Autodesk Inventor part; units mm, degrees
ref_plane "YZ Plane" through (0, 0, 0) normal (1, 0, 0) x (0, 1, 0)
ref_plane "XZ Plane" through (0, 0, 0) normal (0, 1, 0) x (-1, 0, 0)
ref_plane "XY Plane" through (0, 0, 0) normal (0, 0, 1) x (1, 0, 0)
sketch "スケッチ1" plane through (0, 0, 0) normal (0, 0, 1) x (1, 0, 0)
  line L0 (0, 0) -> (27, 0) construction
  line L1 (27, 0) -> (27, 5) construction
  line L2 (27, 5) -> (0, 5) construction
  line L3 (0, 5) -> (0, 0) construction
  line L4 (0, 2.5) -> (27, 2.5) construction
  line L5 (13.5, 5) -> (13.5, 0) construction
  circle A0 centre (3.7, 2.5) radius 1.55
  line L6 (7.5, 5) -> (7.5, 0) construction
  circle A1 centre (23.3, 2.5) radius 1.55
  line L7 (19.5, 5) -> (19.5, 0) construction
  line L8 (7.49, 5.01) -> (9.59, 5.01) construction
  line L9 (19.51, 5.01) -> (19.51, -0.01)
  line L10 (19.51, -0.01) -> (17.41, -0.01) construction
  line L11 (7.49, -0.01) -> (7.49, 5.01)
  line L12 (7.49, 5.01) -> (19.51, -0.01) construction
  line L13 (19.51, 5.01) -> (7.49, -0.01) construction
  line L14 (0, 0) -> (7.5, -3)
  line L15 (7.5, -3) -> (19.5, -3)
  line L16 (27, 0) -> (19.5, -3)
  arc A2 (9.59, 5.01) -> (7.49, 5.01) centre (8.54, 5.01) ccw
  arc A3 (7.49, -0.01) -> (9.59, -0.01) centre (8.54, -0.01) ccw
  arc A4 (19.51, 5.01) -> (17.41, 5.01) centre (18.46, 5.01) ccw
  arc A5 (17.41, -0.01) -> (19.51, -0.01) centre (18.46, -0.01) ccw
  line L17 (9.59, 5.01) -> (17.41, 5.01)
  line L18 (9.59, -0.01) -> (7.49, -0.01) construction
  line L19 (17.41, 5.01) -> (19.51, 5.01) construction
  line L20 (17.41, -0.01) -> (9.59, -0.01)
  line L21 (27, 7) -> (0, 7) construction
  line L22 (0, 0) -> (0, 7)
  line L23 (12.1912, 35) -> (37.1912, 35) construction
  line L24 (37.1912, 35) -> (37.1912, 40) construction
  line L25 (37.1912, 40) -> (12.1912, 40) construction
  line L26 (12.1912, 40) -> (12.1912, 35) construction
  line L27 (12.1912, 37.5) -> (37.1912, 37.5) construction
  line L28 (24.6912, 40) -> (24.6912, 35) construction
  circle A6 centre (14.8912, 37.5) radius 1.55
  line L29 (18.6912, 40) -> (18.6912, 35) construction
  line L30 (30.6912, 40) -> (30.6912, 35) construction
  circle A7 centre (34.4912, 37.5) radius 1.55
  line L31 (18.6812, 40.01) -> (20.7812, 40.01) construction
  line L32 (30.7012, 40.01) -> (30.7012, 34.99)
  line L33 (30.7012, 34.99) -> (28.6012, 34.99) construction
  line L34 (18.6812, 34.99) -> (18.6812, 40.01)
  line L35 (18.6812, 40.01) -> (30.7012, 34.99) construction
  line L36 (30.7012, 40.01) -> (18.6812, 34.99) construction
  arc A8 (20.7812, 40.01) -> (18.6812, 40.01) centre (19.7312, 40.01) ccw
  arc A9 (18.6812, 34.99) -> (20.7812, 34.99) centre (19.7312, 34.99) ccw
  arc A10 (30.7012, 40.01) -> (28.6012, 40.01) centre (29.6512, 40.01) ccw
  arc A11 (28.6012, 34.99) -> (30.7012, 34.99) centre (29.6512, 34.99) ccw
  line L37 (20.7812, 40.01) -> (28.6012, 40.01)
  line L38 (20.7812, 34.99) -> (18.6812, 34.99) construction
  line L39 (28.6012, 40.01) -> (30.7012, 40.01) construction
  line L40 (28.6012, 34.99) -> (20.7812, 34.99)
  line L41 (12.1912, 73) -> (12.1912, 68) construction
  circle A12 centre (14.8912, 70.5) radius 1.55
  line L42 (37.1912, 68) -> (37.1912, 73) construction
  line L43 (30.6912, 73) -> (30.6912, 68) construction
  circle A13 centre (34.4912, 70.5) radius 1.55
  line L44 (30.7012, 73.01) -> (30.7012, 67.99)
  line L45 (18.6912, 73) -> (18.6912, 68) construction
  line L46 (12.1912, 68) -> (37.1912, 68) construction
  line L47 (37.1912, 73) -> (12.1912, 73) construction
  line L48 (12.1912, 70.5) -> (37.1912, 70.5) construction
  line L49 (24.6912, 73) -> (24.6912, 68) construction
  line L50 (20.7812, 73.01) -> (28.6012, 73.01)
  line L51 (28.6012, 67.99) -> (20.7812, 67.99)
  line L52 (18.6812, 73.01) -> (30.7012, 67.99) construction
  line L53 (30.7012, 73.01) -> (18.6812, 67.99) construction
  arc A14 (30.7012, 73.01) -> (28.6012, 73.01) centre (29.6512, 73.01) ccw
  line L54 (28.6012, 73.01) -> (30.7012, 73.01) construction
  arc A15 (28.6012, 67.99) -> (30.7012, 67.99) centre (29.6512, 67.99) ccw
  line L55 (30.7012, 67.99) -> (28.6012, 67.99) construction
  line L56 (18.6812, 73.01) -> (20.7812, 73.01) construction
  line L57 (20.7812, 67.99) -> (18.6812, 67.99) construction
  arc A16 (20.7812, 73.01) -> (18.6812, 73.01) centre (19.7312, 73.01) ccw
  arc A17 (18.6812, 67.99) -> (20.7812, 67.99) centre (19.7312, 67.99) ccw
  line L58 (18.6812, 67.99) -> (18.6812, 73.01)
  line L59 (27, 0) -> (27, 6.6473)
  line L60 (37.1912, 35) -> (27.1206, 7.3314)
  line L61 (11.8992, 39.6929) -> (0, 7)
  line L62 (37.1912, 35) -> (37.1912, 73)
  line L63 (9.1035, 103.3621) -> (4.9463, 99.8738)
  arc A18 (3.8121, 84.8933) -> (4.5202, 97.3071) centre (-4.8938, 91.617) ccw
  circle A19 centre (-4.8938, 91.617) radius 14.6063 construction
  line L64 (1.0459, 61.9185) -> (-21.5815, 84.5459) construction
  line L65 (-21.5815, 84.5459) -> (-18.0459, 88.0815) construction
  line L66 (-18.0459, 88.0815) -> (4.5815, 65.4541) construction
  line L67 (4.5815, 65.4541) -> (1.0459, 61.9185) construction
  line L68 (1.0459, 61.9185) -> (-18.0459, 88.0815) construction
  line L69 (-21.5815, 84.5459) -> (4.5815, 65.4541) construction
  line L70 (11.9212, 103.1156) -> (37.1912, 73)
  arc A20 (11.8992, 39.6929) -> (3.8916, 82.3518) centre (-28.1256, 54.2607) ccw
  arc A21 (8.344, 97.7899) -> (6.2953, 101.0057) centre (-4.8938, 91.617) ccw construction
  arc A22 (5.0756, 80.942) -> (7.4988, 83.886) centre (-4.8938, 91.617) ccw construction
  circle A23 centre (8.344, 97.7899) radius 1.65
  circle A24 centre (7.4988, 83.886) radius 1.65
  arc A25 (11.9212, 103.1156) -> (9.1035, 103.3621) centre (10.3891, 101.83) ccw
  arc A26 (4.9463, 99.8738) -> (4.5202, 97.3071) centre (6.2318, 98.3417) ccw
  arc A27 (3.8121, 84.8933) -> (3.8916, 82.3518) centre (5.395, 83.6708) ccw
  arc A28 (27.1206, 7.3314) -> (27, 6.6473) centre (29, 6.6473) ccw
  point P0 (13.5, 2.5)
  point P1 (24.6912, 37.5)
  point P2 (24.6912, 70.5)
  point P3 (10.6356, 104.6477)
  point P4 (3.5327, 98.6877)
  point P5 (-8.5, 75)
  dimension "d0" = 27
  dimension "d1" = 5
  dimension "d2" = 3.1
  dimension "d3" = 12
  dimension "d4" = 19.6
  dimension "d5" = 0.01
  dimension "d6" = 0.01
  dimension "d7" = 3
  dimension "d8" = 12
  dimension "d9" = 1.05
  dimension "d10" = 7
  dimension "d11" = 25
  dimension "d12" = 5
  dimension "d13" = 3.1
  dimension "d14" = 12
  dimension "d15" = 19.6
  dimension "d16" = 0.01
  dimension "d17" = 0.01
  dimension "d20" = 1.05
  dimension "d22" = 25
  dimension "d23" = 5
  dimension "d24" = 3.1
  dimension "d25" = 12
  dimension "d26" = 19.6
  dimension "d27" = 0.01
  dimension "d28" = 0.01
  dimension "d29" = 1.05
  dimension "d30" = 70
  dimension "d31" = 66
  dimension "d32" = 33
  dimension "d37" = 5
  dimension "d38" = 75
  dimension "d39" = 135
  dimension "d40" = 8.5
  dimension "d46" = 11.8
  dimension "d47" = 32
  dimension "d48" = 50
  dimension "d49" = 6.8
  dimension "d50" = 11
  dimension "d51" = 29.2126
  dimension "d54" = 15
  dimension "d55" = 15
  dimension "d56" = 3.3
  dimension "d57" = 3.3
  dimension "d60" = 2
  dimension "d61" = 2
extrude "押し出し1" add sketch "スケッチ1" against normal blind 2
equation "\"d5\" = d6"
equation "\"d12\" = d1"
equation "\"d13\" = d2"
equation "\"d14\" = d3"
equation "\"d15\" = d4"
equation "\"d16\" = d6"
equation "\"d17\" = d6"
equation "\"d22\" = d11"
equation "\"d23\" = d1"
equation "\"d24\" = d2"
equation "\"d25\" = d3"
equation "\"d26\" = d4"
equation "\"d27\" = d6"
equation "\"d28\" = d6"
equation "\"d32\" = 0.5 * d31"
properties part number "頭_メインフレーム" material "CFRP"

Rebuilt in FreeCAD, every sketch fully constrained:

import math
import FreeCAD as App
import Part
import Sketcher
Q = App.Units.Quantity

doc = App.newDocument("Part")
body = doc.addObject("PartDesign::Body", "Body")

# Sketch on XY plane
sketch1 = body.newObject("Sketcher::SketchObject", "Sketch")
sketch1.AttachmentSupport = (doc.getObject("XY_Plane"), [""])
sketch1.MapMode = "FlatFace"
sketch1.addGeometry(Part.LineSegment(App.Vector(0, 7, 0), App.Vector(0, 0, 0)), False)
sketch1.addGeometry(Part.LineSegment(App.Vector(0, 0, 0), App.Vector(7.5, -3, 0)), False)
sketch1.addGeometry(Part.LineSegment(App.Vector(7.5, -3, 0), App.Vector(19.5, -3, 0)), False)
sketch1.addGeometry(Part.LineSegment(App.Vector(19.5, -3, 0), App.Vector(27, 0, 0)), False)
sketch1.addGeometry(Part.LineSegment(App.Vector(27, 0, 0), App.Vector(27, 6.6, 0)), False)
sketch1.addGeometry(Part.ArcOfCircle(Part.Circle(App.Vector(29, 6.6, 0), App.Vector(0, 0, 1), 2), math.radians(160), math.radians(180)), False)
sketch1.addGeometry(Part.LineSegment(App.Vector(27.1, 7.3, 0), App.Vector(37.2, 35, 0)), False)
sketch1.addGeometry(Part.LineSegment(App.Vector(37.2, 35, 0), App.Vector(37.2, 73, 0)), False)
sketch1.addGeometry(Part.LineSegment(App.Vector(37.2, 73, 0), App.Vector(11.9, 103.1, 0)), False)
sketch1.addGeometry(Part.ArcOfCircle(Part.Circle(App.Vector(10.4, 101.8, 0), App.Vector(0, 0, 1), 2), math.radians(40), math.radians(130)), False)
sketch1.addGeometry(Part.LineSegment(App.Vector(9.1, 103.4, 0), App.Vector(4.9, 99.9, 0)), False)
sketch1.addGeometry(Part.ArcOfCircle(Part.Circle(App.Vector(6.2, 98.3, 0), App.Vector(0, 0, 1), 2), math.radians(130), math.radians(211)), False)
sketch1.addGeometry(Part.ArcOfCircle(Part.Circle(App.Vector(-4.9, 91.6, 0), App.Vector(0, 0, 1), 11), math.radians(-38), math.radians(31)), False)
sketch1.addGeometry(Part.ArcOfCircle(Part.Circle(App.Vector(5.4, 83.7, 0), App.Vector(0, 0, 1), 2), math.radians(142), math.radians(221)), False)
sketch1.addGeometry(Part.ArcOfCircle(Part.Circle(App.Vector(-28.1, 54.3, 0), App.Vector(0, 0, 1), 42.6), math.radians(-20), math.radians(41)), False)
sketch1.addGeometry(Part.LineSegment(App.Vector(11.9, 39.7, 0), App.Vector(0, 7, 0)), False)
sketch1.addGeometry(Part.Circle(App.Vector(3.7, 2.5, 0), App.Vector(0, 0, 1), 1.6), False)
sketch1.addGeometry(Part.ArcOfCircle(Part.Circle(App.Vector(18.5, 5, 0), App.Vector(0, 0, 1), 1.1), math.radians(0), math.radians(180)), False)
sketch1.addGeometry(Part.LineSegment(App.Vector(19.5, 5, 0), App.Vector(19.5, 0, 0)), False)
sketch1.addGeometry(Part.ArcOfCircle(Part.Circle(App.Vector(18.5, 0, 0), App.Vector(0, 0, 1), 1.1), math.radians(180), math.radians(360)), False)
sketch1.addGeometry(Part.LineSegment(App.Vector(17.4, 0, 0), App.Vector(9.6, 0, 0)), False)
sketch1.addGeometry(Part.ArcOfCircle(Part.Circle(App.Vector(8.5, 0, 0), App.Vector(0, 0, 1), 1), math.radians(180), math.radians(360)), False)
sketch1.addGeometry(Part.LineSegment(App.Vector(7.5, 0, 0), App.Vector(7.5, 5, 0)), False)
sketch1.addGeometry(Part.ArcOfCircle(Part.Circle(App.Vector(8.5, 5, 0), App.Vector(0, 0, 1), 1.1), math.radians(0), math.radians(180)), False)
sketch1.addGeometry(Part.LineSegment(App.Vector(9.6, 5, 0), App.Vector(17.4, 5, 0)), False)
sketch1.addGeometry(Part.Circle(App.Vector(14.9, 37.5, 0), App.Vector(0, 0, 1), 1.6), False)
sketch1.addGeometry(Part.Circle(App.Vector(23.3, 2.5, 0), App.Vector(0, 0, 1), 1.6), False)
sketch1.addGeometry(Part.ArcOfCircle(Part.Circle(App.Vector(29.7, 40, 0), App.Vector(0, 0, 1), 1.1), math.radians(0), math.radians(180)), False)
sketch1.addGeometry(Part.LineSegment(App.Vector(30.7, 40, 0), App.Vector(30.7, 35, 0)), False)
sketch1.addGeometry(Part.ArcOfCircle(Part.Circle(App.Vector(29.7, 35, 0), App.Vector(0, 0, 1), 1.1), math.radians(180), math.radians(360)), False)
sketch1.addGeometry(Part.LineSegment(App.Vector(28.6, 35, 0), App.Vector(20.8, 35, 0)), False)
sketch1.addGeometry(Part.ArcOfCircle(Part.Circle(App.Vector(19.7, 35, 0), App.Vector(0, 0, 1), 1.1), math.radians(180), math.radians(360)), False)
sketch1.addGeometry(Part.LineSegment(App.Vector(18.7, 35, 0), App.Vector(18.7, 40, 0)), False)
sketch1.addGeometry(Part.ArcOfCircle(Part.Circle(App.Vector(19.7, 40, 0), App.Vector(0, 0, 1), 1), math.radians(0), math.radians(180)), False)
sketch1.addGeometry(Part.LineSegment(App.Vector(20.8, 40, 0), App.Vector(28.6, 40, 0)), False)
sketch1.addGeometry(Part.Circle(App.Vector(34.5, 37.5, 0), App.Vector(0, 0, 1), 1.6), False)
sketch1.addGeometry(Part.Circle(App.Vector(14.9, 70.5, 0), App.Vector(0, 0, 1), 1.6), False)
sketch1.addGeometry(Part.Circle(App.Vector(7.5, 83.9, 0), App.Vector(0, 0, 1), 1.6), False)
sketch1.addGeometry(Part.Circle(App.Vector(8.3, 97.8, 0), App.Vector(0, 0, 1), 1.6), False)
sketch1.addGeometry(Part.ArcOfCircle(Part.Circle(App.Vector(29.7, 73, 0), App.Vector(0, 0, 1), 1.1), math.radians(0), math.radians(180)), False)
sketch1.addGeometry(Part.LineSegment(App.Vector(30.7, 73, 0), App.Vector(30.7, 68, 0)), False)
sketch1.addGeometry(Part.ArcOfCircle(Part.Circle(App.Vector(29.7, 68, 0), App.Vector(0, 0, 1), 1.1), math.radians(180), math.radians(360)), False)
sketch1.addGeometry(Part.LineSegment(App.Vector(28.6, 68, 0), App.Vector(20.8, 68, 0)), False)
sketch1.addGeometry(Part.ArcOfCircle(Part.Circle(App.Vector(19.7, 68, 0), App.Vector(0, 0, 1), 1.1), math.radians(180), math.radians(360)), False)
sketch1.addGeometry(Part.LineSegment(App.Vector(18.7, 68, 0), App.Vector(18.7, 73, 0)), False)
sketch1.addGeometry(Part.ArcOfCircle(Part.Circle(App.Vector(19.7, 73, 0), App.Vector(0, 0, 1), 1), math.radians(0), math.radians(180)), False)
sketch1.addGeometry(Part.LineSegment(App.Vector(20.8, 73, 0), App.Vector(28.6, 73, 0)), False)
sketch1.addGeometry(Part.Circle(App.Vector(34.5, 70.5, 0), App.Vector(0, 0, 1), 1.6), False)
sketch1.addConstraint(Sketcher.Constraint("Coincident", 0, 2, 1, 1))
sketch1.addConstraint(Sketcher.Constraint("Coincident", 1, 2, 2, 1))
sketch1.addConstraint(Sketcher.Constraint("Coincident", 2, 2, 3, 1))
sketch1.addConstraint(Sketcher.Constraint("Coincident", 3, 2, 4, 1))
sketch1.addConstraint(Sketcher.Constraint("Tangent", 4, 2, 5, 2))
sketch1.addConstraint(Sketcher.Constraint("Tangent", 5, 1, 6, 1))
sketch1.addConstraint(Sketcher.Constraint("Coincident", 6, 2, 7, 1))
sketch1.addConstraint(Sketcher.Constraint("Coincident", 7, 2, 8, 1))
sketch1.addConstraint(Sketcher.Constraint("Tangent", 8, 2, 9, 1))
sketch1.addConstraint(Sketcher.Constraint("Tangent", 9, 2, 10, 1))
sketch1.addConstraint(Sketcher.Constraint("Tangent", 10, 2, 11, 1))
sketch1.addConstraint(Sketcher.Constraint("Tangent", 11, 2, 12, 2))
sketch1.addConstraint(Sketcher.Constraint("Tangent", 12, 1, 13, 1))
sketch1.addConstraint(Sketcher.Constraint("Tangent", 13, 2, 14, 2))
sketch1.addConstraint(Sketcher.Constraint("Tangent", 14, 1, 15, 1))
sketch1.addConstraint(Sketcher.Constraint("Coincident", 15, 2, 0, 1))
sketch1.addConstraint(Sketcher.Constraint("Tangent", 17, 1, 18, 1))
sketch1.addConstraint(Sketcher.Constraint("Tangent", 18, 2, 19, 2))
sketch1.addConstraint(Sketcher.Constraint("Coincident", 19, 1, 20, 1))
sketch1.addConstraint(Sketcher.Constraint("Coincident", 20, 2, 21, 2))
sketch1.addConstraint(Sketcher.Constraint("Tangent", 21, 1, 22, 1))
sketch1.addConstraint(Sketcher.Constraint("Tangent", 22, 2, 23, 2))
sketch1.addConstraint(Sketcher.Constraint("Coincident", 23, 1, 24, 1))
sketch1.addConstraint(Sketcher.Constraint("Coincident", 24, 2, 17, 2))
sketch1.addConstraint(Sketcher.Constraint("Tangent", 27, 1, 28, 1))
sketch1.addConstraint(Sketcher.Constraint("Tangent", 28, 2, 29, 2))
sketch1.addConstraint(Sketcher.Constraint("Coincident", 29, 1, 30, 1))
sketch1.addConstraint(Sketcher.Constraint("Coincident", 30, 2, 31, 2))
sketch1.addConstraint(Sketcher.Constraint("Tangent", 31, 1, 32, 1))
sketch1.addConstraint(Sketcher.Constraint("Tangent", 32, 2, 33, 2))
sketch1.addConstraint(Sketcher.Constraint("Coincident", 33, 1, 34, 1))
sketch1.addConstraint(Sketcher.Constraint("Coincident", 34, 2, 27, 2))
sketch1.addConstraint(Sketcher.Constraint("Tangent", 39, 1, 40, 1))
sketch1.addConstraint(Sketcher.Constraint("Tangent", 40, 2, 41, 2))
sketch1.addConstraint(Sketcher.Constraint("Coincident", 41, 1, 42, 1))
sketch1.addConstraint(Sketcher.Constraint("Coincident", 42, 2, 43, 2))
sketch1.addConstraint(Sketcher.Constraint("Tangent", 43, 1, 44, 1))
sketch1.addConstraint(Sketcher.Constraint("Tangent", 44, 2, 45, 2))
sketch1.addConstraint(Sketcher.Constraint("Coincident", 45, 1, 46, 1))
sketch1.addConstraint(Sketcher.Constraint("Coincident", 46, 2, 39, 2))
sketch1.addConstraint(Sketcher.Constraint("Vertical", 0))
sketch1.addConstraint(Sketcher.Constraint("Horizontal", 2))
sketch1.addConstraint(Sketcher.Constraint("Vertical", 4))
sketch1.addConstraint(Sketcher.Constraint("Vertical", 7))
sketch1.addConstraint(Sketcher.Constraint("Vertical", 18))
sketch1.addConstraint(Sketcher.Constraint("Horizontal", 20))
sketch1.addConstraint(Sketcher.Constraint("Vertical", 22))
sketch1.addConstraint(Sketcher.Constraint("Horizontal", 24))
sketch1.addConstraint(Sketcher.Constraint("Vertical", 28))
sketch1.addConstraint(Sketcher.Constraint("Horizontal", 30))
sketch1.addConstraint(Sketcher.Constraint("Vertical", 32))
sketch1.addConstraint(Sketcher.Constraint("Horizontal", 34))
sketch1.addConstraint(Sketcher.Constraint("Vertical", 40))
sketch1.addConstraint(Sketcher.Constraint("Horizontal", 42))
sketch1.addConstraint(Sketcher.Constraint("Vertical", 44))
sketch1.addConstraint(Sketcher.Constraint("Horizontal", 46))
sketch1.addConstraint(Sketcher.Constraint("Coincident", 0, 2, -1, 1))
sketch1.addConstraint(Sketcher.Constraint("Equal", 9, 11))
sketch1.addConstraint(Sketcher.Constraint("Equal", 11, 13))
sketch1.addConstraint(Sketcher.Constraint("Equal", 17, 19))
sketch1.addConstraint(Sketcher.Constraint("Equal", 19, 21))
sketch1.addConstraint(Sketcher.Constraint("Equal", 21, 23))
sketch1.addConstraint(Sketcher.Constraint("Equal", 16, 25))
sketch1.addConstraint(Sketcher.Constraint("Equal", 25, 26))
sketch1.addConstraint(Sketcher.Constraint("Equal", 23, 27))
sketch1.addConstraint(Sketcher.Constraint("Equal", 27, 29))
sketch1.addConstraint(Sketcher.Constraint("Equal", 29, 31))
sketch1.addConstraint(Sketcher.Constraint("Equal", 31, 33))
sketch1.addConstraint(Sketcher.Constraint("Equal", 26, 35))
sketch1.addConstraint(Sketcher.Constraint("Equal", 35, 36))
sketch1.addConstraint(Sketcher.Constraint("Equal", 37, 38))
sketch1.addConstraint(Sketcher.Constraint("Equal", 33, 39))
sketch1.addConstraint(Sketcher.Constraint("Equal", 39, 41))
sketch1.addConstraint(Sketcher.Constraint("Equal", 41, 43))
sketch1.addConstraint(Sketcher.Constraint("Equal", 43, 45))
sketch1.addConstraint(Sketcher.Constraint("Equal", 36, 47))
sketch1.addConstraint(Sketcher.Constraint("PointOnObject", 3, 2, -1))
sketch1.addConstraint(Sketcher.Constraint("Perpendicular", 8, 10))
sketch1.addConstraint(Sketcher.Constraint("Parallel", 6, 15))
sketch1.addConstraint(Sketcher.Constraint("Horizontal", 19, 3, 21, 3))
sketch1.addConstraint(Sketcher.Constraint("Horizontal", 17, 3, 23, 3))
sketch1.addConstraint(Sketcher.Constraint("Horizontal", 16, 3, 26, 3))
sketch1.addConstraint(Sketcher.Constraint("Horizontal", 29, 3, 31, 3))
sketch1.addConstraint(Sketcher.Constraint("Horizontal", 27, 3, 33, 3))
sketch1.addConstraint(Sketcher.Constraint("Horizontal", 25, 3, 35, 3))
sketch1.addConstraint(Sketcher.Constraint("Horizontal", 41, 3, 43, 3))
sketch1.addConstraint(Sketcher.Constraint("Horizontal", 39, 3, 45, 3))
sketch1.addConstraint(Sketcher.Constraint("Horizontal", 36, 3, 47, 3))
sketch1.addConstraint(Sketcher.Constraint("Horizontal", 18, 2, 19, 1))
sketch1.addConstraint(Sketcher.Constraint("Horizontal", 22, 2, 23, 1))
sketch1.addConstraint(Sketcher.Constraint("Horizontal", 28, 2, 29, 1))
sketch1.addConstraint(Sketcher.Constraint("Horizontal", 32, 2, 33, 1))
sketch1.addConstraint(Sketcher.Constraint("Horizontal", 40, 2, 41, 1))
sketch1.addConstraint(Sketcher.Constraint("Horizontal", 44, 2, 45, 1))
sketch1.addConstraint(Sketcher.Constraint("Vertical", 25, 3, 36, 3))
sketch1.addConstraint(Sketcher.Constraint("Vertical", 29, 3, 39, 3))
sketch1.addConstraint(Sketcher.Constraint("Vertical", 33, 3, 43, 3))
sketch1.addConstraint(Sketcher.Constraint("Vertical", 35, 3, 47, 3))
sketch1.addConstraint(Sketcher.Constraint("Equal", 24, 30))
sketch1.addConstraint(Sketcher.Constraint("Equal", 22, 28))
sketch1.addConstraint(Sketcher.Constraint("Equal", 32, 40))
sketch1.addConstraint(Sketcher.Constraint("Equal", 1, 3))
sketch1.addConstraint(Sketcher.Constraint("Radius", 9, 2.0))
sketch1.addConstraint(Sketcher.Constraint("Radius", 12, 11.0))
sketch1.addConstraint(Sketcher.Constraint("Diameter", 16, 3.1))
sketch1.addConstraint(Sketcher.Constraint("Diameter", 37, 3.3))
sketch1.addConstraint(Sketcher.Constraint("DistanceX", 2, 1, 2, 2, 12.0))
sketch1.addConstraint(Sketcher.Constraint("DistanceY", 0, 2, 0, 1, 7.0))
sketch1.addConstraint(Sketcher.Constraint("Angle", 6, Q("70 deg")))
sketch1.addConstraint(Sketcher.Constraint("Radius", 17, 1.05))
sketch1.addConstraint(Sketcher.Constraint("DistanceY", 1, 2, -1, 1, 3.0))
sketch1.addConstraint(Sketcher.Constraint("DistanceX", -1, 1, 3, 2, 27.0))
sketch1.addConstraint(Sketcher.Constraint("DistanceY", 7, 1, 7, 2, 38.0))
sketch1.addConstraint(Sketcher.Constraint("DistanceY", 19, 3, -1, 1, 0.01))
sketch1.addConstraint(Sketcher.Constraint("Angle", 8, Q("130 deg")))
sketch1.addConstraint(Sketcher.Constraint("DistanceY", -1, 1, 6, 2, 35.0))
sketch1.addConstraint(Sketcher.Constraint("Radius", 5, 1.999))
sketch1.addConstraint(Sketcher.Constraint("DistanceX", 20, 2, 20, 1, 7.82))
sketch1.addConstraint(Sketcher.Constraint("DistanceY", 18, 2, 18, 1, 5.02))
sketch1.addConstraint(Sketcher.Constraint("DistanceX", -1, 1, 16, 3, 3.7))
sketch1.addConstraint(Sketcher.Constraint("DistanceY", -1, 1, 16, 3, 2.5))
sketch1.addConstraint(Sketcher.Constraint("DistanceY", -1, 1, 25, 3, 37.5))
sketch1.addConstraint(Sketcher.Constraint("DistanceX", -1, 1, 26, 3, 23.3))
sketch1.addConstraint(Sketcher.Constraint("DistanceY", -1, 1, 36, 3, 70.5))
sketch1.addConstraint(Sketcher.Constraint("Radius", 14, 42.5935))
sketch1.addConstraint(Sketcher.Constraint("DistanceY", -1, 1, 9, 3, 101.83))
sketch1.addConstraint(Sketcher.Constraint("DistanceX", -1, 1, 17, 3, 18.46))
sketch1.addConstraint(Sketcher.Constraint("DistanceY", -1, 1, 27, 3, 40.01))
sketch1.addConstraint(Sketcher.Constraint("DistanceY", -1, 1, 38, 3, 97.79))
sketch1.addConstraint(Sketcher.Constraint("DistanceY", -1, 1, 39, 3, 73.01))
sketch1.addConstraint(Sketcher.Constraint("Distance", 15, 34.791))
sketch1.addConstraint(Sketcher.Constraint("DistanceY", 4, 1, 4, 2, 6.6473))
sketch1.addConstraint(Sketcher.Constraint("DistanceY", -1, 1, 12, 3, 91.617))
sketch1.addConstraint(Sketcher.Constraint("DistanceX", -1, 1, 13, 3, 5.395))
sketch1.addConstraint(Sketcher.Constraint("DistanceY", -1, 1, 37, 3, 83.886))
sketch1.addConstraint(Sketcher.Constraint("DistanceX", -1, 1, 38, 3, 8.344))
sketch1.addConstraint(Sketcher.Constraint("DistanceX", -1, 1, 25, 3, 14.8912))
sketch1.addConstraint(Sketcher.Constraint("DistanceX", -1, 1, 27, 3, 29.6512))
sketch1.addConstraint(Sketcher.Constraint("DistanceX", -1, 1, 35, 3, 34.4912))
sketch1.addConstraint(Sketcher.Constraint("DistanceX", -1, 1, 37, 3, 7.4988))
pad1 = body.newObject("PartDesign::Pad", "Pad")
pad1.Profile = sketch1
pad1.Length = 2
pad1.Reversed = True

doc.recompute()
